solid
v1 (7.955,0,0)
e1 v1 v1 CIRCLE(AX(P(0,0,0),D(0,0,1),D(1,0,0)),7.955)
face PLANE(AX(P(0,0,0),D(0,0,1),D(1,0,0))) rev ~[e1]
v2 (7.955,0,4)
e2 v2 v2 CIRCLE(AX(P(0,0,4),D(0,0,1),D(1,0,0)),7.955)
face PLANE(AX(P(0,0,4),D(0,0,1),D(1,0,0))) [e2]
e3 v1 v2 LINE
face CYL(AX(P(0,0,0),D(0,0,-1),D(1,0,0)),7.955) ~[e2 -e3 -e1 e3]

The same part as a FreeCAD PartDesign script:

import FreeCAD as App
import Part
import Sketcher
from FreeCAD import Vector
Q = App.Units.Quantity

doc = App.newDocument("Part")
body = doc.addObject("PartDesign::Body", "Body")

# Sketch on XY plane
sketch1 = body.newObject("Sketcher::SketchObject", "Sketch")
sketch1.AttachmentSupport = (doc.getObject("XY_Plane"), [""])
sketch1.MapMode = "FlatFace"
sketch1.addGeometry(Part.Circle(Vector(0, 0, 0), Vector(0, 0, 1), 7.955), False)
sketch1.addConstraint(Sketcher.Constraint("Coincident", 0, 3, -1, 1))
sketch1.addConstraint(Sketcher.Constraint("Diameter", 0, Q("15.91 mm")))
pad1 = body.newObject("PartDesign::Pad", "Pad")
pad1.Profile = sketch1
pad1.Length = 4

doc.recompute()
